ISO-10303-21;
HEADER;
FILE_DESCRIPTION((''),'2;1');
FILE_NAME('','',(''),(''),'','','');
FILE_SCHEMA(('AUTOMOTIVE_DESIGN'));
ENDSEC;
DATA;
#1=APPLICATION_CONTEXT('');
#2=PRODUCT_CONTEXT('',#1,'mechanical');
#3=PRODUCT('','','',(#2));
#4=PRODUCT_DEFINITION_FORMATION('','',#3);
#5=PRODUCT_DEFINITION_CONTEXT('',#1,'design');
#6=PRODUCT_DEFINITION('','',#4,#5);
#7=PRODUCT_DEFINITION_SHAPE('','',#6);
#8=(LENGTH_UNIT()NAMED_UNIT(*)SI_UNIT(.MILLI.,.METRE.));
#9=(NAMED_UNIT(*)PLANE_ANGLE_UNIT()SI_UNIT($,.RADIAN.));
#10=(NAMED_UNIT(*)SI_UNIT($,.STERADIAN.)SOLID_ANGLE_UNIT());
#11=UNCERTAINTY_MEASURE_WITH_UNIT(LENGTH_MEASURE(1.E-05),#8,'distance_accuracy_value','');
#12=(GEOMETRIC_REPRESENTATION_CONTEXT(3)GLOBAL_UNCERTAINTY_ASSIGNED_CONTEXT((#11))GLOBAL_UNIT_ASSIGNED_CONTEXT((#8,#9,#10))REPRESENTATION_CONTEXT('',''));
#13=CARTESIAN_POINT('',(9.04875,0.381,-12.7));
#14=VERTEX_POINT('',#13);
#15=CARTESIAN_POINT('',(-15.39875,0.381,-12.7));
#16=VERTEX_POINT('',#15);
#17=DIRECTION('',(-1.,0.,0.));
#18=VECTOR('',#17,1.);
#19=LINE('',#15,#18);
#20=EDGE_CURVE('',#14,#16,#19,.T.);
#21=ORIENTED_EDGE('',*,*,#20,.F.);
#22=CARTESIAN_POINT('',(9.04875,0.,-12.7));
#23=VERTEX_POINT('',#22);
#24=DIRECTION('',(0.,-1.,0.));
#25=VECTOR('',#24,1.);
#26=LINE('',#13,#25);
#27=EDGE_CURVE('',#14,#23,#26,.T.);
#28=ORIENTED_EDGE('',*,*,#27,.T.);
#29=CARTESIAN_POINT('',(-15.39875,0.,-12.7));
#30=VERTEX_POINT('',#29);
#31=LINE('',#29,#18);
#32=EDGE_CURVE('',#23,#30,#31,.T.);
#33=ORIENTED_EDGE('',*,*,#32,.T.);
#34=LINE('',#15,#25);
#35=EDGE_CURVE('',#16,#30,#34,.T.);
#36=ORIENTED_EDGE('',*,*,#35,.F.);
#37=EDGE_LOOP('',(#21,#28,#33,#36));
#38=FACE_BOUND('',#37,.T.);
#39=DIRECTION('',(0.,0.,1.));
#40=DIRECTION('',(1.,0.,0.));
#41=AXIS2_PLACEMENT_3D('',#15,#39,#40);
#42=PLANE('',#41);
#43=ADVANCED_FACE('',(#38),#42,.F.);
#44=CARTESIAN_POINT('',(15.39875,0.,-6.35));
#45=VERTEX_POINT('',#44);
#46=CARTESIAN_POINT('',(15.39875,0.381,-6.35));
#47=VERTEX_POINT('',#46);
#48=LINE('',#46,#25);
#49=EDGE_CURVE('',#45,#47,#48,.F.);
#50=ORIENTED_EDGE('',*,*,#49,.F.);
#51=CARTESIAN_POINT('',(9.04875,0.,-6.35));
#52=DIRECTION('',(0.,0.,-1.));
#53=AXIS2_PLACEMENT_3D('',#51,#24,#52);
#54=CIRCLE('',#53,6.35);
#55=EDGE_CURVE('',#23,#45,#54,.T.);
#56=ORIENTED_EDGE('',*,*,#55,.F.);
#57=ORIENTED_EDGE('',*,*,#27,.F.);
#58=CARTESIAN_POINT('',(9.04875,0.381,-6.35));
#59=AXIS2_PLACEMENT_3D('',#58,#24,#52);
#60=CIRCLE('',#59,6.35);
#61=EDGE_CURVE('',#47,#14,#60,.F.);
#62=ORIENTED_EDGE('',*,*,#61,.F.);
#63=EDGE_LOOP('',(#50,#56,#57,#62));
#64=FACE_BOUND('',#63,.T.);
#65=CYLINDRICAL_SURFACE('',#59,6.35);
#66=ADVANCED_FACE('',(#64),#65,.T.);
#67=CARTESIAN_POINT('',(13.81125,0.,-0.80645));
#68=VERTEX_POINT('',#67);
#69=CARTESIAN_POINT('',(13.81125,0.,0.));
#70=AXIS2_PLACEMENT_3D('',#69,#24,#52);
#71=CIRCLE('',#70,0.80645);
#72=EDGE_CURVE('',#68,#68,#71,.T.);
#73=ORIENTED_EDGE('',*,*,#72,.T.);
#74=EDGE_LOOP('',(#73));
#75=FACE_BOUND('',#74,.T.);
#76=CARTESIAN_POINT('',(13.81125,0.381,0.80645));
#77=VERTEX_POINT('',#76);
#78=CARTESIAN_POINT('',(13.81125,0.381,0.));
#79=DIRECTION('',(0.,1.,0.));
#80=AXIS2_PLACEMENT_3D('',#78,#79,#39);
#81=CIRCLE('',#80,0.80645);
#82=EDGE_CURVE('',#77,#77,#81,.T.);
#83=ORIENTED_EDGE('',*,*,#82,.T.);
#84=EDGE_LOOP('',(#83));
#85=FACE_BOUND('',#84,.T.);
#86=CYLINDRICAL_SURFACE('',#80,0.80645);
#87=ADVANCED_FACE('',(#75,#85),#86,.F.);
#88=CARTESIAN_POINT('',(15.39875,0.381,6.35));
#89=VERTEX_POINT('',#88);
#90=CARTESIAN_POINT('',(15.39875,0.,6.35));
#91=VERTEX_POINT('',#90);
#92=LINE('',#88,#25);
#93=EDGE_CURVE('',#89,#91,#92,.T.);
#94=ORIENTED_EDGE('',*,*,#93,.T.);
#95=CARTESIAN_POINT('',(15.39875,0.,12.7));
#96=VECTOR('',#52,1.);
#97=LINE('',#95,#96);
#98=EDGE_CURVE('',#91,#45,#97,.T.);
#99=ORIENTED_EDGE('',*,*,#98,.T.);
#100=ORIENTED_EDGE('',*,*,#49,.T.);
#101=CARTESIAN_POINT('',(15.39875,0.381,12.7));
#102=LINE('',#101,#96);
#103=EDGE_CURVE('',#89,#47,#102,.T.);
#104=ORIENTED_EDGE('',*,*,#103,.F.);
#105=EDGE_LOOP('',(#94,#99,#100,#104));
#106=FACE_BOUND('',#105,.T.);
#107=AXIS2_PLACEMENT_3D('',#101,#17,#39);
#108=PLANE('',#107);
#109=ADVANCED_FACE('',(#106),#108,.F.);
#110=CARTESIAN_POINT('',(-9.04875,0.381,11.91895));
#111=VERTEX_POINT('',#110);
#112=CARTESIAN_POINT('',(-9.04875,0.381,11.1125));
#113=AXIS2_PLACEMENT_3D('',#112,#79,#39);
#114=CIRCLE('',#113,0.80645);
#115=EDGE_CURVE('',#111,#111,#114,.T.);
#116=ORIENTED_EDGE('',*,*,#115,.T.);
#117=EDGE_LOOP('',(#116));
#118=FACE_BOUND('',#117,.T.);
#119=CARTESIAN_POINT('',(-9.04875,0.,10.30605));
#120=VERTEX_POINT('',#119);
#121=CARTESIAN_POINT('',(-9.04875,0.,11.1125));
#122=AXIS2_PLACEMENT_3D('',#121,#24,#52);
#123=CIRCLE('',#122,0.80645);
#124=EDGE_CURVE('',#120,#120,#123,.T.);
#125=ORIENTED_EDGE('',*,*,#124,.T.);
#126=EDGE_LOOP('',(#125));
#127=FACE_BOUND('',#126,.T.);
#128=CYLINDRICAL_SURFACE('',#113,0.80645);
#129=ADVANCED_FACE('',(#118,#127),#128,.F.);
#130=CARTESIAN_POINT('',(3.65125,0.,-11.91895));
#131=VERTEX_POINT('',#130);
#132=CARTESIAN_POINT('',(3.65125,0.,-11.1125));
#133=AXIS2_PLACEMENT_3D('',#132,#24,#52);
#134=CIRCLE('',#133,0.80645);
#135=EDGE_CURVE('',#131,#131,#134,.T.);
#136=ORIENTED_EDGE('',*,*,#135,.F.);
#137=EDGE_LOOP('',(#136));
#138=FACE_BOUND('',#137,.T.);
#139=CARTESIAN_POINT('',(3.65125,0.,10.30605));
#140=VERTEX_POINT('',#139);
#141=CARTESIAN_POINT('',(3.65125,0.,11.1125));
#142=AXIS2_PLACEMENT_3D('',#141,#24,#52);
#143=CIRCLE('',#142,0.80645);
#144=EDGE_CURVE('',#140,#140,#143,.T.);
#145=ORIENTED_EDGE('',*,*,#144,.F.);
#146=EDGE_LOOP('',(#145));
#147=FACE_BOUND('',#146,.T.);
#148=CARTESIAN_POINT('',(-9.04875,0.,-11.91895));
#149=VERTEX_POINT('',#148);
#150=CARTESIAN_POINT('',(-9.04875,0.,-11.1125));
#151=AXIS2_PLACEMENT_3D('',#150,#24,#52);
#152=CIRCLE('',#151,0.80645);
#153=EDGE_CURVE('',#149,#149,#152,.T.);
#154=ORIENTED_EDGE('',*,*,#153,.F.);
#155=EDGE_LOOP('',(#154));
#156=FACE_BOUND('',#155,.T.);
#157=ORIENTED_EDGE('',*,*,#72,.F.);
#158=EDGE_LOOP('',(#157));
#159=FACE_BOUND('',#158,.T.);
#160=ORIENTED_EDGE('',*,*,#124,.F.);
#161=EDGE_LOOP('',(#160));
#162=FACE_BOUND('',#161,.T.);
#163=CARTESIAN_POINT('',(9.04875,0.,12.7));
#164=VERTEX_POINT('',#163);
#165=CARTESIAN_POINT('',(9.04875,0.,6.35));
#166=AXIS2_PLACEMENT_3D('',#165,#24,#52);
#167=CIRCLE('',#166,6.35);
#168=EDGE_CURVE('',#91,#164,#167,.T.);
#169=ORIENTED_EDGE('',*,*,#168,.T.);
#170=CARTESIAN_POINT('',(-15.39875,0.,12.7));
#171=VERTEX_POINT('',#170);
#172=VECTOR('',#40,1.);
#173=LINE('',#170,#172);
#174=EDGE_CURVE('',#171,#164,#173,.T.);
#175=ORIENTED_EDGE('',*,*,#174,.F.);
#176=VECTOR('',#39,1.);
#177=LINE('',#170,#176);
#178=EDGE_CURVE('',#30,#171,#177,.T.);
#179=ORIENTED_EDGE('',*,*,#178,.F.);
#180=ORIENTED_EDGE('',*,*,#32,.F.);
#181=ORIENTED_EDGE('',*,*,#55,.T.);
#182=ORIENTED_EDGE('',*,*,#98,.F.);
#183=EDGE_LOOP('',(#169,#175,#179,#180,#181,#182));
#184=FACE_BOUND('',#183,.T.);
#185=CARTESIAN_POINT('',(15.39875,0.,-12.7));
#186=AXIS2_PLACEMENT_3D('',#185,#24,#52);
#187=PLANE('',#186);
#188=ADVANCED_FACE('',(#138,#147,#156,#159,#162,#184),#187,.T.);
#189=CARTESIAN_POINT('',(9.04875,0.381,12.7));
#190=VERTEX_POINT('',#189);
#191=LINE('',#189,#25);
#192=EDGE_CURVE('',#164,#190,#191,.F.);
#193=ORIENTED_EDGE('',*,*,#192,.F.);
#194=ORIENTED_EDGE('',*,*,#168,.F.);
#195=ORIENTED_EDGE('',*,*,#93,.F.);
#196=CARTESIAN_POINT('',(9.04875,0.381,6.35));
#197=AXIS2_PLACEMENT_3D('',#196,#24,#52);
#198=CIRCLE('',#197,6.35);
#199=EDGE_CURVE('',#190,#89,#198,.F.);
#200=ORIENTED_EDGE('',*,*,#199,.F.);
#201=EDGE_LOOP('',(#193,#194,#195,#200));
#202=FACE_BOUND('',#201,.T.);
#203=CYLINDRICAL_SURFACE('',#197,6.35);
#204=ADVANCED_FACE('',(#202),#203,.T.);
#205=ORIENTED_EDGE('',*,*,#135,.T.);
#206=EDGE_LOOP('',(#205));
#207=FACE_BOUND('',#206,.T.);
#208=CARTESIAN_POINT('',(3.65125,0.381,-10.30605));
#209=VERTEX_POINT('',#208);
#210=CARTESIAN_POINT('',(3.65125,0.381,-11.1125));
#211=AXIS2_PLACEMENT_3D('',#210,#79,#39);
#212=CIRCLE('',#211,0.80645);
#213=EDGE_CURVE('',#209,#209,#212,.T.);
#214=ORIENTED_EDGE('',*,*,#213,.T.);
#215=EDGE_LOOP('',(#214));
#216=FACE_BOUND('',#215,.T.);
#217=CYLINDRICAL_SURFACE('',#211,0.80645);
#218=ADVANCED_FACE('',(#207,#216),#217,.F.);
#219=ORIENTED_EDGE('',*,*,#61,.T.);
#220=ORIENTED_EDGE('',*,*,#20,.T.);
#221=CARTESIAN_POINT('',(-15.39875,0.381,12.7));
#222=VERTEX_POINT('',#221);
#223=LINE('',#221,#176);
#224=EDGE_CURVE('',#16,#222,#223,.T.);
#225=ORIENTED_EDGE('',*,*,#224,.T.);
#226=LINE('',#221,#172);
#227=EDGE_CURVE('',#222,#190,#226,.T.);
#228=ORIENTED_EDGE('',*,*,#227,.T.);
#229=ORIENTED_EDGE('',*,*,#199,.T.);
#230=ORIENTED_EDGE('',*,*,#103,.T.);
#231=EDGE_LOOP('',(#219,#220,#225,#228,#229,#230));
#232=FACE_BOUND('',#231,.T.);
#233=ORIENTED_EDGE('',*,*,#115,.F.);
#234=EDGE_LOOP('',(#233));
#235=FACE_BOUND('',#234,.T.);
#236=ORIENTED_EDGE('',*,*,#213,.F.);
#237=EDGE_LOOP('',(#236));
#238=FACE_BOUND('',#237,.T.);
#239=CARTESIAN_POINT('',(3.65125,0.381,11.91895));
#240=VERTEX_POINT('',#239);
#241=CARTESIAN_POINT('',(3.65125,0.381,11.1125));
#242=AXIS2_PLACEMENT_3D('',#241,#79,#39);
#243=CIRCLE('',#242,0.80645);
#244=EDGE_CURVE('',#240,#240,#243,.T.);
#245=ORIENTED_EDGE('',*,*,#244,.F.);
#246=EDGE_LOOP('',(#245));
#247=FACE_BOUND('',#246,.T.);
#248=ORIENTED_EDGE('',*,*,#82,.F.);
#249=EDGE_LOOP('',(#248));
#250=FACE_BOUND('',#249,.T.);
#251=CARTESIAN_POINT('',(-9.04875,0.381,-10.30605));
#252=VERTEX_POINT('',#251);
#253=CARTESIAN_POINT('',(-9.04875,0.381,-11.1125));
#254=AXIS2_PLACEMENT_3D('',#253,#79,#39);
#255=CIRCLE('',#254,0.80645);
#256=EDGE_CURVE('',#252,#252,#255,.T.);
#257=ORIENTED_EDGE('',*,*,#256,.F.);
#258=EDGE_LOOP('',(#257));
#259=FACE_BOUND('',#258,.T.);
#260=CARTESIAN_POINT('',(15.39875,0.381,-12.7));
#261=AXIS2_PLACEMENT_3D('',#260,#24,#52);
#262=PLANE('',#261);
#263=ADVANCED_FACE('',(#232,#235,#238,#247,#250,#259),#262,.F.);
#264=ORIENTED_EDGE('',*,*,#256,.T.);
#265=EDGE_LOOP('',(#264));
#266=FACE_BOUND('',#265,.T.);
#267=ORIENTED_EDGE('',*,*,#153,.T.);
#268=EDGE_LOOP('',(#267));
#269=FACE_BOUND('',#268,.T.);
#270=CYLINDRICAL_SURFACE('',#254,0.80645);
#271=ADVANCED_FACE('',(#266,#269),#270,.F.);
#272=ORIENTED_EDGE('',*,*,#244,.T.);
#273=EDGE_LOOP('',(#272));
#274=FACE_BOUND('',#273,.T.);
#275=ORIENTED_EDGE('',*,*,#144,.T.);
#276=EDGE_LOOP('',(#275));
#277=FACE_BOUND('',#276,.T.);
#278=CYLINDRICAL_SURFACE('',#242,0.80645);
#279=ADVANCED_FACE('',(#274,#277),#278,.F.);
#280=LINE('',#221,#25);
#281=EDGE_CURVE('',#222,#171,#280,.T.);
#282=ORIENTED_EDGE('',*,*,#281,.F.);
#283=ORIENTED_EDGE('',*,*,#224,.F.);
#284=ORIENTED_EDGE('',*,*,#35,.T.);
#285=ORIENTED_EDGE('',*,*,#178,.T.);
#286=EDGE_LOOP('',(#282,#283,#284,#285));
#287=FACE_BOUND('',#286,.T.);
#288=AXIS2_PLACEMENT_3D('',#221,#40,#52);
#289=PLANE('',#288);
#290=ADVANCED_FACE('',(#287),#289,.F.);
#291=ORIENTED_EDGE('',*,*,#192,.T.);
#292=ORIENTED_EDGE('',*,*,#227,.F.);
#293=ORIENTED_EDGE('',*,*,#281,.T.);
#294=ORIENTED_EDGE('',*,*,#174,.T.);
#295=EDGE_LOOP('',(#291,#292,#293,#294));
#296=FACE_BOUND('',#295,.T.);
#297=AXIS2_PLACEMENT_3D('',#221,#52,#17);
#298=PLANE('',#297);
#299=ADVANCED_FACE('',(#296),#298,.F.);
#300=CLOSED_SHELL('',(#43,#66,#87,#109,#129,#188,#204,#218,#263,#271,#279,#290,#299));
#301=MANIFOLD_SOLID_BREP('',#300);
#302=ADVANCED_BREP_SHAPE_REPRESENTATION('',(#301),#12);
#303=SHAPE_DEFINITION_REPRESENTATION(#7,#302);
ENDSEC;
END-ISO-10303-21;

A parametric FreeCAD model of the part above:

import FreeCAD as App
import Part
import Sketcher

V = App.Vector
Q = App.Units.Quantity


def edges_at(feature, points):
    """Names of the edges that pass closest to the given points."""
    edges = feature.Shape.Edges
    near = lambda p: min(range(len(edges)), key=lambda i: edges[i].distToShape(Part.Vertex(*p))[0])
    return sorted({f"Edge{near(p) + 1}" for p in points})

doc = App.newDocument("Part")
body = doc.addObject("PartDesign::Body", "Body")

sketch1 = doc.addObject("Sketcher::SketchObject", "Sketch")
body.addObject(sketch1)
sketch1.AttachmentSupport = (doc.XZ_Plane, [""])
sketch1.MapMode = "FlatFace"
sketch1.addGeometry(Part.LineSegment(V(-15.39875, -12.7, 0), V(-15.39875, 12.7, 0)), False)
sketch1.addGeometry(Part.LineSegment(V(-15.39875, 12.7, 0), V(15.39875, 12.7, 0)), False)
sketch1.addGeometry(Part.LineSegment(V(15.39875, 12.7, 0), V(15.39875, -12.7, 0)), False)
sketch1.addGeometry(Part.LineSegment(V(15.39875, -12.7, 0), V(-15.39875, -12.7, 0)), False)
sketch1.addConstraint(Sketcher.Constraint("Coincident", 0, 2, 1, 1))
sketch1.addConstraint(Sketcher.Constraint("Coincident", 1, 2, 2, 1))
sketch1.addConstraint(Sketcher.Constraint("Coincident", 2, 2, 3, 1))
sketch1.addConstraint(Sketcher.Constraint("Coincident", 3, 2, 0, 1))
sketch1.addConstraint(Sketcher.Constraint("Vertical", 0))
sketch1.addConstraint(Sketcher.Constraint("Horizontal", 1))
sketch1.addConstraint(Sketcher.Constraint("Vertical", 2))
sketch1.addConstraint(Sketcher.Constraint("Horizontal", 3))
sketch1.addConstraint(Sketcher.Constraint("Symmetric", 0, 2, 2, 2, -1, 1))
sketch1.addConstraint(Sketcher.Constraint("DistanceY", 0, 1, 0, 2, Q("1 in")))
sketch1.addConstraint(Sketcher.Constraint("DistanceX", 1, 1, 1, 2, Q("1.2125 in")))
pad1 = doc.addObject("PartDesign::Pad", "Pad")
body.addObject(pad1)
pad1.Profile = sketch1
pad1.Length = Q("0.015 in")
pad1.Reversed = True
doc.recompute()

fillet = doc.addObject("PartDesign::Fillet", "Fillet")
body.addObject(fillet)
fillet.Base = (pad1, edges_at(pad1, [(15.399, 0.191, 12.7), (15.399, 0.191, -12.7)]))
fillet.Radius = Q("0.25 in")

sketch2 = doc.addObject("Sketcher::SketchObject", "Sketch001")
body.addObject(sketch2)
sketch2.AttachmentSupport = (doc.XZ_Plane, [""])
sketch2.MapMode = "FlatFace"
sketch2.AttachmentOffset = App.Placement(V(0, 0, -0.015 * 25.4), App.Rotation())
sketch2.addGeometry(Part.Circle(V(-9.04875, -11.1125, 0), V(0, 0, 1), 0.80645), False)
sketch2.addGeometry(Part.Circle(V(3.65125, -11.1125, 0), V(0, 0, 1), 0.80645), False)
sketch2.addGeometry(Part.Circle(V(13.81125, 0, 0), V(0, 0, 1), 0.80645), False)
sketch2.addGeometry(Part.Circle(V(-9.04875, 11.1125, 0), V(0, 0, 1), 0.80645), False)
sketch2.addGeometry(Part.Circle(V(3.65125, 11.1125, 0), V(0, 0, 1), 0.80645), False)
sketch2.addConstraint(Sketcher.Constraint("Equal", 0, 1))
sketch2.addConstraint(Sketcher.Constraint("Equal", 1, 2))
sketch2.addConstraint(Sketcher.Constraint("Equal", 2, 3))
sketch2.addConstraint(Sketcher.Constraint("Equal", 3, 4))
sketch2.addConstraint(Sketcher.Constraint("Symmetric", 0, 3, 3, 3, -1))
sketch2.addConstraint(Sketcher.Constraint("Symmetric", 1, 3, 4, 3, -1))
sketch2.addConstraint(Sketcher.Constraint("PointOnObject", 2, 3, -1))
sketch2.addConstraint(Sketcher.Constraint("Horizontal", 0, 3, 1, 3))
sketch2.addConstraint(Sketcher.Constraint("Diameter", 0, Q("0.0635 in")))
sketch2.addConstraint(Sketcher.Constraint("DistanceX", 0, 3, 1, 3, Q("0.5 in")))
sketch2.addConstraint(Sketcher.Constraint("DistanceX", 1, 3, 2, 3, Q("0.4 in")))
sketch2.addConstraint(Sketcher.Constraint("DistanceY", 0, 3, -1, 1, Q("0.4375 in")))
sketch2.addConstraint(Sketcher.Constraint("DistanceX", 0, 3, -1, 1, 9.04875))
doc.recompute()
hole = doc.addObject("PartDesign::Hole", "Hole")
body.addObject(hole)
hole.Profile = sketch2
hole.ThreadType = "None"
hole.Diameter = Q("0.0635 in")
hole.DepthType = "Dimension"
hole.Depth = Q("1 in")
hole.DrillPoint = "Angled"
hole.DrillPointAngle = 118
hole.Reversed = True

doc.recompute()
